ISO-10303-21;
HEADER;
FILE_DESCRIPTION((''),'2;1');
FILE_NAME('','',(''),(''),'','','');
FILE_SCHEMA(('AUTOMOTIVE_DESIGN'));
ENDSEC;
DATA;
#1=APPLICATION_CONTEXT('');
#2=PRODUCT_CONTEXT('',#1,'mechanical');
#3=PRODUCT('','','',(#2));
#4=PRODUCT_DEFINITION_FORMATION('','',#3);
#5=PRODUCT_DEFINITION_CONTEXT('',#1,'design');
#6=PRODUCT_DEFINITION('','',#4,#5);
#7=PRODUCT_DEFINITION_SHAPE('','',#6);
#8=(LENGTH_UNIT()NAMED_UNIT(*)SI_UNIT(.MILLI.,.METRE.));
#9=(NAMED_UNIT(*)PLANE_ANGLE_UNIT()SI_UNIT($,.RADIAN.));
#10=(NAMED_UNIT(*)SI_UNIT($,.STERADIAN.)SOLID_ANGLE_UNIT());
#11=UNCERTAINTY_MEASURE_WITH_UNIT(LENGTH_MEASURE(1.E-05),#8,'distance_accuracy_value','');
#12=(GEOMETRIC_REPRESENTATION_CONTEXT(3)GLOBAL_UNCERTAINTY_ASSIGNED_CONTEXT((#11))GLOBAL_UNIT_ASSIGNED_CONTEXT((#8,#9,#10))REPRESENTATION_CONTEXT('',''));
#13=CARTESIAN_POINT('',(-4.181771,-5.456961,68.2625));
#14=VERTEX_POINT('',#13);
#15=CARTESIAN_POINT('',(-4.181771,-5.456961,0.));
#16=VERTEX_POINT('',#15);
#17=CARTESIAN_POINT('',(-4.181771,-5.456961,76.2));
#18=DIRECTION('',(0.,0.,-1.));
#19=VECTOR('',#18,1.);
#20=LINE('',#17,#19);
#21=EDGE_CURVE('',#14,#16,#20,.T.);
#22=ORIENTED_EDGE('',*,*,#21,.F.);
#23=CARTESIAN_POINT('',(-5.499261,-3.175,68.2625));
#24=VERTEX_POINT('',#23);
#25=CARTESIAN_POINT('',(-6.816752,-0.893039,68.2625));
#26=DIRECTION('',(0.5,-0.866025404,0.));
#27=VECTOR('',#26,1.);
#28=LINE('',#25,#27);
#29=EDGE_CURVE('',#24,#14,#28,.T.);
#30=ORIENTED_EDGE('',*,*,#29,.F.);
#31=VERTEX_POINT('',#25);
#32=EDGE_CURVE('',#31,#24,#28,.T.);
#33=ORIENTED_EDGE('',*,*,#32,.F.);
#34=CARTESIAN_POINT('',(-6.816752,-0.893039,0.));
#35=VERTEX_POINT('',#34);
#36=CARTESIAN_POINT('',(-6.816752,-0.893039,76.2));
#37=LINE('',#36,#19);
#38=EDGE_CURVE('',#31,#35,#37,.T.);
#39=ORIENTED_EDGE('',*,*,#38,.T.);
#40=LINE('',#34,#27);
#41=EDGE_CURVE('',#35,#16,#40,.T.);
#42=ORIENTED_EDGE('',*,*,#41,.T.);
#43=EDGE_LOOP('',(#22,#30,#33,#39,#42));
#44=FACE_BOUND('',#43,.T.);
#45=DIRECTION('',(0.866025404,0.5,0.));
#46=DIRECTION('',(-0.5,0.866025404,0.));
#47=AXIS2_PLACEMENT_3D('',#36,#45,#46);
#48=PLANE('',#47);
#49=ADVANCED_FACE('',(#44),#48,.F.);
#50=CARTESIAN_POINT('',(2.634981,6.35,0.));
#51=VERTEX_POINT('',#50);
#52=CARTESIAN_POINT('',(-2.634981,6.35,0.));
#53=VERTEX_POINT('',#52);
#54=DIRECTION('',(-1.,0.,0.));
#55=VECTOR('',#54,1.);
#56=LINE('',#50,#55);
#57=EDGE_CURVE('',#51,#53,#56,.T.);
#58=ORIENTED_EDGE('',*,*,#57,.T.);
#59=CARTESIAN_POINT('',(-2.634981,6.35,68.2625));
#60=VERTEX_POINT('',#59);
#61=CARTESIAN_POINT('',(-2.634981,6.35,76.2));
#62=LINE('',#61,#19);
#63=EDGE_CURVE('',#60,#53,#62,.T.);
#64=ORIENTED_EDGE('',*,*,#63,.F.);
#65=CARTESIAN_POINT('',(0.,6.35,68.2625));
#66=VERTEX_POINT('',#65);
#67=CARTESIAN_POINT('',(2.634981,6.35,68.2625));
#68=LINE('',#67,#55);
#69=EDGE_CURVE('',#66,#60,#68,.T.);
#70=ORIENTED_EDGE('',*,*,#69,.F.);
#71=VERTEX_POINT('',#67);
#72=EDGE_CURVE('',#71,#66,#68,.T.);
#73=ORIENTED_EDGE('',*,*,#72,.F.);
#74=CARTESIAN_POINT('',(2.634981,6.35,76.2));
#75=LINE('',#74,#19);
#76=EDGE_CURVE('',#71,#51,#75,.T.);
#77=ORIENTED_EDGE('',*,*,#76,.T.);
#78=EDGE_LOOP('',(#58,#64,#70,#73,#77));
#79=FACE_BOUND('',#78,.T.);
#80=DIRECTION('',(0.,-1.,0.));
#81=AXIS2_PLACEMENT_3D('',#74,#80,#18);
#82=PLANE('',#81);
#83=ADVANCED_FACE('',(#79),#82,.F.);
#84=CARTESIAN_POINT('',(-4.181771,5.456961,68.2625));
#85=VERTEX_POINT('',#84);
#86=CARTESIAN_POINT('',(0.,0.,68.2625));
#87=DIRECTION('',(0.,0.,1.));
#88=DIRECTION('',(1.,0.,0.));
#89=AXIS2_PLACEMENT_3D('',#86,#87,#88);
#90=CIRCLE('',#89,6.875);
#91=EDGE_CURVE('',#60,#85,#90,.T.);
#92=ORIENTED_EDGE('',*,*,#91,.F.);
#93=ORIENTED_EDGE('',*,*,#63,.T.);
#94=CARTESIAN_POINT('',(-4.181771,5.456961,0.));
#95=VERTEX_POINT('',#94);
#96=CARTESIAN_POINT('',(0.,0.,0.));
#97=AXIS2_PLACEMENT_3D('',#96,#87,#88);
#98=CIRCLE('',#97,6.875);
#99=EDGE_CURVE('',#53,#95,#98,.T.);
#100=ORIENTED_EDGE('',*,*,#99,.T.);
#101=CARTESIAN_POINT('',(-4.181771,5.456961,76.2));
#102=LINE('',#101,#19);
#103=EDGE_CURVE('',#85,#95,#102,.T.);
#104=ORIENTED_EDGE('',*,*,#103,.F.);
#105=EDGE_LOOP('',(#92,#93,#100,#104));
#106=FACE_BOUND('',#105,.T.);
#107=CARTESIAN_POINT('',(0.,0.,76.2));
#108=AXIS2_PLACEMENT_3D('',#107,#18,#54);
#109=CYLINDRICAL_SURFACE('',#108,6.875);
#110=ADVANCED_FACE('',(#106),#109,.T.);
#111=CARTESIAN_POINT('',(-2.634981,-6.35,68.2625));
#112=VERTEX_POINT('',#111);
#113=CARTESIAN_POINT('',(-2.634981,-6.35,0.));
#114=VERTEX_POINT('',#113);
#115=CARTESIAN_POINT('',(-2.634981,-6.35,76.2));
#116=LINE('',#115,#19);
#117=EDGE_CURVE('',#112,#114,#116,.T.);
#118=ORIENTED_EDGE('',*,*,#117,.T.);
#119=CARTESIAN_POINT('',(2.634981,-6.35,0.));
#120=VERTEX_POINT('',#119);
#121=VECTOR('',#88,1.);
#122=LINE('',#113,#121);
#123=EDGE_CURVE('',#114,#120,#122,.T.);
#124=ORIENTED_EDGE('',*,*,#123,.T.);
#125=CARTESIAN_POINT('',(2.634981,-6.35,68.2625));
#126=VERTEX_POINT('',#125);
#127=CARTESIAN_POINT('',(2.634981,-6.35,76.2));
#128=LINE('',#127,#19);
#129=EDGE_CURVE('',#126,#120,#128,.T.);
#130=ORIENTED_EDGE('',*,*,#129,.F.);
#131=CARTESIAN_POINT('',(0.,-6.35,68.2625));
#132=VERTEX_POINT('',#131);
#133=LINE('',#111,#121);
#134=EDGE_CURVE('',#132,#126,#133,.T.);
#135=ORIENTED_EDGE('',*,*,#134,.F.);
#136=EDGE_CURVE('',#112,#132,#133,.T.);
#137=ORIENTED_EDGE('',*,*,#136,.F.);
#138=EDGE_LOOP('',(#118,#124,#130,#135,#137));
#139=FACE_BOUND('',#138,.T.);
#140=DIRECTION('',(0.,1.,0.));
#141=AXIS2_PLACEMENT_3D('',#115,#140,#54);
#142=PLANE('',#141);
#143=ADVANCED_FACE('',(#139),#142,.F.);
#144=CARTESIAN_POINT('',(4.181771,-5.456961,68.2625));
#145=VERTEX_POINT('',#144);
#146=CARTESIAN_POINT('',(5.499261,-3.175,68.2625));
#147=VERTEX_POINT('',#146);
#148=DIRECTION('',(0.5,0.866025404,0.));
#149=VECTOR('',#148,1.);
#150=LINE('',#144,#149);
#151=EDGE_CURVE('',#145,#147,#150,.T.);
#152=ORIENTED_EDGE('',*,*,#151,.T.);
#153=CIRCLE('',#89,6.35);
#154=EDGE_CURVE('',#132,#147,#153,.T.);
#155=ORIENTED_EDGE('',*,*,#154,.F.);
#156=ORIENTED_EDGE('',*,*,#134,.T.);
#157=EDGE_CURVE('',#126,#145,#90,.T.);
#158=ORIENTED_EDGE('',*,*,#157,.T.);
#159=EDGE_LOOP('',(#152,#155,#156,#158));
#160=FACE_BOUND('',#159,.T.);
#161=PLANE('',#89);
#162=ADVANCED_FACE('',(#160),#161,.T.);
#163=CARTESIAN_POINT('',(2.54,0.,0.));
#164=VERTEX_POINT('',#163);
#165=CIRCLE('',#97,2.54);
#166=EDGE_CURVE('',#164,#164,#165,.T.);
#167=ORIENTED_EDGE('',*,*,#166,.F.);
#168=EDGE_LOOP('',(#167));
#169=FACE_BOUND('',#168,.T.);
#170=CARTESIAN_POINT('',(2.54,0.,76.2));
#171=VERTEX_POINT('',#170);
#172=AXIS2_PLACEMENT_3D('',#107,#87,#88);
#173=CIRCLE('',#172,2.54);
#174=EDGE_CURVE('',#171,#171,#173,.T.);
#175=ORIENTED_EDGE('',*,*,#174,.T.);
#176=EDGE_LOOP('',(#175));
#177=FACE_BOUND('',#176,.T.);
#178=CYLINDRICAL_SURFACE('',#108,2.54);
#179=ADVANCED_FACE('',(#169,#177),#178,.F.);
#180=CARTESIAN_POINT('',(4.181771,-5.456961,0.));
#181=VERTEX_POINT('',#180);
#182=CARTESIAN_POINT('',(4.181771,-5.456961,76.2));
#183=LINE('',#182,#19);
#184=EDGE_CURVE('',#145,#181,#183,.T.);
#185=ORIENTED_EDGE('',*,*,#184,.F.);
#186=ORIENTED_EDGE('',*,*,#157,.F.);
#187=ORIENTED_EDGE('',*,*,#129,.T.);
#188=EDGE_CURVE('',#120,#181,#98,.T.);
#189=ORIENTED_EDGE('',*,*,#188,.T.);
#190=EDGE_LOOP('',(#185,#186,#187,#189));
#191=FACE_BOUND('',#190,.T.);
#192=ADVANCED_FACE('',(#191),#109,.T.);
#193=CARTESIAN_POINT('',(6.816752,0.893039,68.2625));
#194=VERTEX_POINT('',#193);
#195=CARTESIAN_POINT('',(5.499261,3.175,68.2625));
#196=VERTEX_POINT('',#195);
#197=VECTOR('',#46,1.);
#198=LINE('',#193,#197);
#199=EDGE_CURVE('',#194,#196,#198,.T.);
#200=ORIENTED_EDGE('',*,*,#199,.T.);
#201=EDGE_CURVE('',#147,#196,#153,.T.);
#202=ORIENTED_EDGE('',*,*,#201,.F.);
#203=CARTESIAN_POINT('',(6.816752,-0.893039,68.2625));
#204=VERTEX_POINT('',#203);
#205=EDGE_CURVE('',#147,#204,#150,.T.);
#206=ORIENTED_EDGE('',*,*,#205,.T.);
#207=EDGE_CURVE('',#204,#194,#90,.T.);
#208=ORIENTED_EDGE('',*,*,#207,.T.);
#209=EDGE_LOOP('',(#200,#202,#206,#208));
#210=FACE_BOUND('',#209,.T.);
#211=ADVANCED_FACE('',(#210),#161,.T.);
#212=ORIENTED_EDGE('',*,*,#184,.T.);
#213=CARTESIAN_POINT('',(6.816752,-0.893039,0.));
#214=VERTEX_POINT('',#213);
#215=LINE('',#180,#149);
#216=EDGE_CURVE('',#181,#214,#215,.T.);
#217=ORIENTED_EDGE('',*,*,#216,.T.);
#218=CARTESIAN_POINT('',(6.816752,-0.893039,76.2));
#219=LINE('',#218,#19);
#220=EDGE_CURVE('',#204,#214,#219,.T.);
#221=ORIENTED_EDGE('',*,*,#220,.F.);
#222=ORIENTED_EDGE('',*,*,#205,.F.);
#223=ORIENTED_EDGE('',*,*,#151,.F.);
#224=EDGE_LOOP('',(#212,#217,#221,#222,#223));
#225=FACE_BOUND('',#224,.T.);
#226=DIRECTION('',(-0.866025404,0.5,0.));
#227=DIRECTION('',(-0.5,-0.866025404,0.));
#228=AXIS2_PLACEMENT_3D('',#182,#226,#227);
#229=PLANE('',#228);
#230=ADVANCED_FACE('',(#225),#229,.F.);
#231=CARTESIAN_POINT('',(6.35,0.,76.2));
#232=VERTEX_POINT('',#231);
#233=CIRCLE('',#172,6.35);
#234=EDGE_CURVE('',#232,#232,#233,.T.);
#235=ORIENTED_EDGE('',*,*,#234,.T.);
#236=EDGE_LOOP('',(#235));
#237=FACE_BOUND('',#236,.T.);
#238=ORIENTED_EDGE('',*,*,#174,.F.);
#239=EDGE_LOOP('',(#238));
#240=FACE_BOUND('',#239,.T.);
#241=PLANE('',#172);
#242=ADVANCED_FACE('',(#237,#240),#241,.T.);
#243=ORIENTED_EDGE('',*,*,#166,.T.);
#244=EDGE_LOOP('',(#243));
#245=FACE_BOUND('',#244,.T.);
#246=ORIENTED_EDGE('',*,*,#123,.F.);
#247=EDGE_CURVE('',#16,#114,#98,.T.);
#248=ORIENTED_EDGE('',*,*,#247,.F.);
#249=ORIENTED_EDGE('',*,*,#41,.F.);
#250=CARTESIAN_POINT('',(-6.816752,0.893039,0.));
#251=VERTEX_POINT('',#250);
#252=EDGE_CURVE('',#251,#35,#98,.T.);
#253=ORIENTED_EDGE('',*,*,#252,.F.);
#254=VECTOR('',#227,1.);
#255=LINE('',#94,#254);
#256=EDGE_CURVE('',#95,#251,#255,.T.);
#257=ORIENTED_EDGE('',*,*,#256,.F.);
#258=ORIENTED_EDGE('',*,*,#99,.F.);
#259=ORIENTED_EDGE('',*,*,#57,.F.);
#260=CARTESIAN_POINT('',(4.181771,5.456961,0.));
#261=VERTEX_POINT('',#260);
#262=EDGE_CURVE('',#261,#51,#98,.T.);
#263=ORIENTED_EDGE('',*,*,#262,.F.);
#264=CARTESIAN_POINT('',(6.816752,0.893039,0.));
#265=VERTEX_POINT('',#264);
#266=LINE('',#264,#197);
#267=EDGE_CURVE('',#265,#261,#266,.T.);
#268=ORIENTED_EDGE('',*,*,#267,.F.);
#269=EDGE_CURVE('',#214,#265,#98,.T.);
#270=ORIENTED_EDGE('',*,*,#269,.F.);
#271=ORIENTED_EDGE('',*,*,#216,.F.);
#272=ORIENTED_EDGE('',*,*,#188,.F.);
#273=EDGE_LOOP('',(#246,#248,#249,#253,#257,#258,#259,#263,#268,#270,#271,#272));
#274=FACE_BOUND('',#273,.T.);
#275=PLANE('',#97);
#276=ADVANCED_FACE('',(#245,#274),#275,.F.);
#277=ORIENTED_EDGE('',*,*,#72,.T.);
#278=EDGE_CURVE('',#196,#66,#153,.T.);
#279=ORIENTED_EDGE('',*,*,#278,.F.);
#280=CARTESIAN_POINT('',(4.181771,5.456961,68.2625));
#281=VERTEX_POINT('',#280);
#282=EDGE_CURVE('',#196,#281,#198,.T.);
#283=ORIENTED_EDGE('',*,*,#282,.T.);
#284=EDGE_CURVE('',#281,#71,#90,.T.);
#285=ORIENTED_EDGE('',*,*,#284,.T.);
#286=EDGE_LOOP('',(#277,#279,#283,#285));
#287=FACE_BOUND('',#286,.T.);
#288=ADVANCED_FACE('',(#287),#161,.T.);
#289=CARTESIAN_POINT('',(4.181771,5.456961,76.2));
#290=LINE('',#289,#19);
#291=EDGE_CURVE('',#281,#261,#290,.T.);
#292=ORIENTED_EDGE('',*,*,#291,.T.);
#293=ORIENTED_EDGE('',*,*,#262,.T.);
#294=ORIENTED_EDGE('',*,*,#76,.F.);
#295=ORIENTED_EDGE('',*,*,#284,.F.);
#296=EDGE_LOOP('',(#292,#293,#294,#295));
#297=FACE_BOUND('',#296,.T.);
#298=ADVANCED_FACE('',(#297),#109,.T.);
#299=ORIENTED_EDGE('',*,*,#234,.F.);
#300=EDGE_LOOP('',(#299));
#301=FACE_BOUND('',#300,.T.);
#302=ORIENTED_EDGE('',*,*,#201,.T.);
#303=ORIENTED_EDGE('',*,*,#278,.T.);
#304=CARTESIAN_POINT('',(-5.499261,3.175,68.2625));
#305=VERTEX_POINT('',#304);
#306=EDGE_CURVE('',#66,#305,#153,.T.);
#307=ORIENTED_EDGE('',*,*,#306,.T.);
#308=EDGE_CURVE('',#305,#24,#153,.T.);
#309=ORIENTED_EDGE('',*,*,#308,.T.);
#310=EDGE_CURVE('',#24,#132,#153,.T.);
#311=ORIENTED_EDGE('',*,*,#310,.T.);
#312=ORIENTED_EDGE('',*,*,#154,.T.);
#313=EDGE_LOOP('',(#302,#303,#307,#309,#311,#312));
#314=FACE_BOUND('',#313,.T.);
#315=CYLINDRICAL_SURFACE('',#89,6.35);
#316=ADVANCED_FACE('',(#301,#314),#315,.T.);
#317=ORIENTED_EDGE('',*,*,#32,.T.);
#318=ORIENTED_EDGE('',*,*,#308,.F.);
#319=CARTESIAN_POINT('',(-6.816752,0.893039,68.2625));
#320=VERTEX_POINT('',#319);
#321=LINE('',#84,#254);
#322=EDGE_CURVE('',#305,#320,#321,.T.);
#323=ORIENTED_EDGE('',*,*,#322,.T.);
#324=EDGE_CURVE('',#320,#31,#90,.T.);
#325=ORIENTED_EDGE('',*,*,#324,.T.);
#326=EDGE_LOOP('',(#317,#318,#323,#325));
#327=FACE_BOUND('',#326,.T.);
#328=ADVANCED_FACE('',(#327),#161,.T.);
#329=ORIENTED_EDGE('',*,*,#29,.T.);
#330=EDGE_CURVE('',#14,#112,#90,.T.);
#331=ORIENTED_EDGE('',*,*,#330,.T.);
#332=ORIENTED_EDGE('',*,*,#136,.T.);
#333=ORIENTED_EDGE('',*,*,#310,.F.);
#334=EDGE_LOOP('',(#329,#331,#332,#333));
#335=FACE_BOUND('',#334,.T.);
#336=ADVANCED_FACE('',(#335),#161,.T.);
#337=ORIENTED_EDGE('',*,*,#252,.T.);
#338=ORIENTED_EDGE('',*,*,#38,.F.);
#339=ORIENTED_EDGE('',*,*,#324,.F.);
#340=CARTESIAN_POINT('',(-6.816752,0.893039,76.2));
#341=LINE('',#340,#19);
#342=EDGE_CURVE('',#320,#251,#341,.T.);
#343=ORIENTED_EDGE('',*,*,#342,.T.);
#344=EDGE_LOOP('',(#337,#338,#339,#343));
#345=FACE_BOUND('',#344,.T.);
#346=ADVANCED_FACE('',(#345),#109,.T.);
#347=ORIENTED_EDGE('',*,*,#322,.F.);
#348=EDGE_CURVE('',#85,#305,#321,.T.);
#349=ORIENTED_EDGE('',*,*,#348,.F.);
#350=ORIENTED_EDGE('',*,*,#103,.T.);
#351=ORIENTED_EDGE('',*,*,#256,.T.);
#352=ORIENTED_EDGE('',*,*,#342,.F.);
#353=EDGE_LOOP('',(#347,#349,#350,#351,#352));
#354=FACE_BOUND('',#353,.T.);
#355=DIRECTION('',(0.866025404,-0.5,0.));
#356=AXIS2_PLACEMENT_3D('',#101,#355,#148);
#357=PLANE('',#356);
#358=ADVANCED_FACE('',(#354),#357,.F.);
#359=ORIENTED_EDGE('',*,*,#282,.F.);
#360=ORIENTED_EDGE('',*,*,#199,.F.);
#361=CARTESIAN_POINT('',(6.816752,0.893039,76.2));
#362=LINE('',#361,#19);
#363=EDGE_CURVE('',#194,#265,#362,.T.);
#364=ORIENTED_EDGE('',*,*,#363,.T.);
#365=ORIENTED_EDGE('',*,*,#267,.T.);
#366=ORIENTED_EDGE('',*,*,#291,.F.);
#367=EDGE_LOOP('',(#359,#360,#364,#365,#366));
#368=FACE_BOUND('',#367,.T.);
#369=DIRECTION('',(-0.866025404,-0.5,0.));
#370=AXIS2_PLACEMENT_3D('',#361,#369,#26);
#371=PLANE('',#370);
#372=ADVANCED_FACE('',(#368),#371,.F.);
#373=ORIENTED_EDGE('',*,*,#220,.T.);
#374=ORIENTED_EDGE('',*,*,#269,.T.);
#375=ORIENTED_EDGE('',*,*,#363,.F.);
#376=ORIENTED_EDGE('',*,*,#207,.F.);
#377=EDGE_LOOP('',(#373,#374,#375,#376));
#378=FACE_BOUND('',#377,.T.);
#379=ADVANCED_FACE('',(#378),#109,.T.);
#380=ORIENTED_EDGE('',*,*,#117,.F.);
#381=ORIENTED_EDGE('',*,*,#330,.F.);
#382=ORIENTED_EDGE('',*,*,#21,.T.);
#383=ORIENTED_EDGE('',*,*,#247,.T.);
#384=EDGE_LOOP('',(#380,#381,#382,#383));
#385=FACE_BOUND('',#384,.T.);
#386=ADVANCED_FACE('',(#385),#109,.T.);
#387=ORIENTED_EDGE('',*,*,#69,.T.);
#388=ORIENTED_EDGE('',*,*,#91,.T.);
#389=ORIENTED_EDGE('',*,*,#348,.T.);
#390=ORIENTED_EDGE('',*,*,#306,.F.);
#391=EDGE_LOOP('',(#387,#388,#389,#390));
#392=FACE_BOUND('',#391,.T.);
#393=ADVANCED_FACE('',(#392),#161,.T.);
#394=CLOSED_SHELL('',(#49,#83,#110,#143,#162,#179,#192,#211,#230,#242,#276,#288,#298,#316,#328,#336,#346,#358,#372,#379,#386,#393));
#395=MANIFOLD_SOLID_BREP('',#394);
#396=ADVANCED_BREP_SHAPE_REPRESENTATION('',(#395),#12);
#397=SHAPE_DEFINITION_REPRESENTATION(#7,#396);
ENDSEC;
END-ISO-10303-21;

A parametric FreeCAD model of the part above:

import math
import FreeCAD as App
import Part
import Sketcher

V = App.Vector
Q = App.Units.Quantity

doc = App.newDocument("Part")
body = doc.addObject("PartDesign::Body", "Body")

sketch1 = body.newObject("Sketcher::SketchObject", "Sketch")
sketch1.AttachmentSupport = (doc.getObject("XY_Plane"), [""])
sketch1.MapMode = "FlatFace"
sketch1.addGeometry([
    Part.LineSegment(V(4.2, -5.5, 0), V(6.8, -0.9, 0)),
    Part.ArcOfCircle(Part.Circle(V(0, 0, 0), V(0, 0, 1), 6.9), math.radians(-7.46), math.radians(7.46)),
    Part.LineSegment(V(6.8, 0.9, 0), V(4.2, 5.5, 0)),
    Part.ArcOfCircle(Part.Circle(V(0, 0, 0), V(0, 0, 1), 6.9), math.radians(52.54), math.radians(67.46)),
    Part.LineSegment(V(2.6, 6.3, 0), V(-2.6, 6.3, 0)),
    Part.ArcOfCircle(Part.Circle(V(0, 0, 0), V(0, 0, 1), 6.9), math.radians(112.54), math.radians(127.46)),
    Part.LineSegment(V(-4.2, 5.5, 0), V(-6.8, 0.9, 0)),
    Part.ArcOfCircle(Part.Circle(V(0, 0, 0), V(0, 0, 1), 6.9), math.radians(172.54), math.radians(187.46)),
    Part.LineSegment(V(-6.8, -0.9, 0), V(-4.2, -5.5, 0)),
    Part.ArcOfCircle(Part.Circle(V(0, 0, 0), V(0, 0, 1), 6.9), math.radians(-127.46), math.radians(-112.54)),
    Part.LineSegment(V(-2.6, -6.3, 0), V(2.6, -6.3, 0)),
    Part.ArcOfCircle(Part.Circle(V(0, 0, 0), V(0, 0, 1), 6.9), math.radians(-67.46), math.radians(-52.54)),
    Part.Circle(V(0, 0, 0), V(0, 0, 1), 2.5),
], False)
sketch1.addConstraint([
    Sketcher.Constraint("Coincident", 0, 2, 1, 1),
    Sketcher.Constraint("Coincident", 1, 2, 2, 1),
    Sketcher.Constraint("Coincident", 2, 2, 3, 1),
    Sketcher.Constraint("Coincident", 3, 2, 4, 1),
    Sketcher.Constraint("Coincident", 4, 2, 5, 1),
    Sketcher.Constraint("Coincident", 5, 2, 6, 1),
    Sketcher.Constraint("Coincident", 6, 2, 7, 1),
    Sketcher.Constraint("Coincident", 7, 2, 8, 1),
    Sketcher.Constraint("Coincident", 8, 2, 9, 1),
    Sketcher.Constraint("Coincident", 9, 2, 10, 1),
    Sketcher.Constraint("Coincident", 10, 2, 11, 1),
    Sketcher.Constraint("Coincident", 11, 2, 0, 1),
    Sketcher.Constraint("Horizontal", 4),
    Sketcher.Constraint("Horizontal", 10),
    Sketcher.Constraint("Coincident", 1, 3, -1, 1),
    Sketcher.Constraint("Coincident", 3, 3, -1, 1),
    Sketcher.Constraint("Coincident", 5, 3, -1, 1),
    Sketcher.Constraint("Coincident", 7, 3, -1, 1),
    Sketcher.Constraint("Coincident", 9, 3, -1, 1),
    Sketcher.Constraint("Coincident", 11, 3, -1, 1),
    Sketcher.Constraint("Coincident", 12, 3, -1, 1),
    Sketcher.Constraint("Equal", 1, 3),
    Sketcher.Constraint("Equal", 3, 5),
    Sketcher.Constraint("Equal", 5, 7),
    Sketcher.Constraint("Equal", 7, 9),
    Sketcher.Constraint("Equal", 9, 11),
    Sketcher.Constraint("Parallel", 0, 6),
    Sketcher.Constraint("Parallel", 2, 8),
    Sketcher.Constraint("Horizontal", 2, 2, 5, 2),
    Sketcher.Constraint("Horizontal", 1, 2, 6, 2),
    Sketcher.Constraint("Horizontal", 0, 2, 7, 2),
    Sketcher.Constraint("Vertical", 0, 2, 1, 2),
    Sketcher.Constraint("Vertical", 4, 2, 9, 2),
    Sketcher.Constraint("Diameter", 12, Q("0.2 in")),
    Sketcher.Constraint("Angle", 0, Q("60 deg")),
    Sketcher.Constraint("DistanceY", -1, 1, 3, 2, Q("0.25 in")),
    Sketcher.Constraint("Radius", 1, 6.875),
    Sketcher.Constraint("DistanceY", 0, 2, 2, 2, Q("0.25 in")),
])
pad1 = body.newObject("PartDesign::Pad", "Pad")
pad1.Profile = sketch1
pad1.Length = Q("3 in")

sketch2 = body.newObject("Sketcher::SketchObject", "Sketch001")
sketch2.AttachmentSupport = (doc.getObject("XY_Plane"), [""])
sketch2.MapMode = "FlatFace"
sketch2.AttachmentOffset = App.Placement(V(0, 0, 3 * 25.4), App.Rotation())
sketch2.addGeometry([
    Part.LineSegment(V(-16, 15, 0), V(-16, -15, 0)),
    Part.LineSegment(V(-16, -15, 0), V(16, -15, 0)),
    Part.LineSegment(V(16, -15, 0), V(16, 15, 0)),
    Part.LineSegment(V(16, 15, 0), V(-16, 15, 0)),
    Part.Circle(V(0, 0, 0), V(0, 0, 1), 6),
], False)
sketch2.addConstraint([
    Sketcher.Constraint("Coincident", 0, 2, 1, 1),
    Sketcher.Constraint("Coincident", 1, 2, 2, 1),
    Sketcher.Constraint("Coincident", 2, 2, 3, 1),
    Sketcher.Constraint("Coincident", 3, 2, 0, 1),
    Sketcher.Constraint("Vertical", 0),
    Sketcher.Constraint("Horizontal", 1),
    Sketcher.Constraint("Vertical", 2),
    Sketcher.Constraint("Horizontal", 3),
    Sketcher.Constraint("Coincident", 4, 3, -1, 1),
    Sketcher.Constraint("Symmetric", 0, 2, 2, 2, -1, 1),
    Sketcher.Constraint("Diameter", 4, Q("0.5 in")),
    Sketcher.Constraint("DistanceX", 1, 1, 1, 2, 31.444),
    Sketcher.Constraint("DistanceY", 0, 2, 0, 1, 30.394),
])
pocket1 = body.newObject("PartDesign::Pocket", "Pocket")
pocket1.Profile = sketch2
pocket1.Length = Q("0.3125 in")

doc.recompute()
